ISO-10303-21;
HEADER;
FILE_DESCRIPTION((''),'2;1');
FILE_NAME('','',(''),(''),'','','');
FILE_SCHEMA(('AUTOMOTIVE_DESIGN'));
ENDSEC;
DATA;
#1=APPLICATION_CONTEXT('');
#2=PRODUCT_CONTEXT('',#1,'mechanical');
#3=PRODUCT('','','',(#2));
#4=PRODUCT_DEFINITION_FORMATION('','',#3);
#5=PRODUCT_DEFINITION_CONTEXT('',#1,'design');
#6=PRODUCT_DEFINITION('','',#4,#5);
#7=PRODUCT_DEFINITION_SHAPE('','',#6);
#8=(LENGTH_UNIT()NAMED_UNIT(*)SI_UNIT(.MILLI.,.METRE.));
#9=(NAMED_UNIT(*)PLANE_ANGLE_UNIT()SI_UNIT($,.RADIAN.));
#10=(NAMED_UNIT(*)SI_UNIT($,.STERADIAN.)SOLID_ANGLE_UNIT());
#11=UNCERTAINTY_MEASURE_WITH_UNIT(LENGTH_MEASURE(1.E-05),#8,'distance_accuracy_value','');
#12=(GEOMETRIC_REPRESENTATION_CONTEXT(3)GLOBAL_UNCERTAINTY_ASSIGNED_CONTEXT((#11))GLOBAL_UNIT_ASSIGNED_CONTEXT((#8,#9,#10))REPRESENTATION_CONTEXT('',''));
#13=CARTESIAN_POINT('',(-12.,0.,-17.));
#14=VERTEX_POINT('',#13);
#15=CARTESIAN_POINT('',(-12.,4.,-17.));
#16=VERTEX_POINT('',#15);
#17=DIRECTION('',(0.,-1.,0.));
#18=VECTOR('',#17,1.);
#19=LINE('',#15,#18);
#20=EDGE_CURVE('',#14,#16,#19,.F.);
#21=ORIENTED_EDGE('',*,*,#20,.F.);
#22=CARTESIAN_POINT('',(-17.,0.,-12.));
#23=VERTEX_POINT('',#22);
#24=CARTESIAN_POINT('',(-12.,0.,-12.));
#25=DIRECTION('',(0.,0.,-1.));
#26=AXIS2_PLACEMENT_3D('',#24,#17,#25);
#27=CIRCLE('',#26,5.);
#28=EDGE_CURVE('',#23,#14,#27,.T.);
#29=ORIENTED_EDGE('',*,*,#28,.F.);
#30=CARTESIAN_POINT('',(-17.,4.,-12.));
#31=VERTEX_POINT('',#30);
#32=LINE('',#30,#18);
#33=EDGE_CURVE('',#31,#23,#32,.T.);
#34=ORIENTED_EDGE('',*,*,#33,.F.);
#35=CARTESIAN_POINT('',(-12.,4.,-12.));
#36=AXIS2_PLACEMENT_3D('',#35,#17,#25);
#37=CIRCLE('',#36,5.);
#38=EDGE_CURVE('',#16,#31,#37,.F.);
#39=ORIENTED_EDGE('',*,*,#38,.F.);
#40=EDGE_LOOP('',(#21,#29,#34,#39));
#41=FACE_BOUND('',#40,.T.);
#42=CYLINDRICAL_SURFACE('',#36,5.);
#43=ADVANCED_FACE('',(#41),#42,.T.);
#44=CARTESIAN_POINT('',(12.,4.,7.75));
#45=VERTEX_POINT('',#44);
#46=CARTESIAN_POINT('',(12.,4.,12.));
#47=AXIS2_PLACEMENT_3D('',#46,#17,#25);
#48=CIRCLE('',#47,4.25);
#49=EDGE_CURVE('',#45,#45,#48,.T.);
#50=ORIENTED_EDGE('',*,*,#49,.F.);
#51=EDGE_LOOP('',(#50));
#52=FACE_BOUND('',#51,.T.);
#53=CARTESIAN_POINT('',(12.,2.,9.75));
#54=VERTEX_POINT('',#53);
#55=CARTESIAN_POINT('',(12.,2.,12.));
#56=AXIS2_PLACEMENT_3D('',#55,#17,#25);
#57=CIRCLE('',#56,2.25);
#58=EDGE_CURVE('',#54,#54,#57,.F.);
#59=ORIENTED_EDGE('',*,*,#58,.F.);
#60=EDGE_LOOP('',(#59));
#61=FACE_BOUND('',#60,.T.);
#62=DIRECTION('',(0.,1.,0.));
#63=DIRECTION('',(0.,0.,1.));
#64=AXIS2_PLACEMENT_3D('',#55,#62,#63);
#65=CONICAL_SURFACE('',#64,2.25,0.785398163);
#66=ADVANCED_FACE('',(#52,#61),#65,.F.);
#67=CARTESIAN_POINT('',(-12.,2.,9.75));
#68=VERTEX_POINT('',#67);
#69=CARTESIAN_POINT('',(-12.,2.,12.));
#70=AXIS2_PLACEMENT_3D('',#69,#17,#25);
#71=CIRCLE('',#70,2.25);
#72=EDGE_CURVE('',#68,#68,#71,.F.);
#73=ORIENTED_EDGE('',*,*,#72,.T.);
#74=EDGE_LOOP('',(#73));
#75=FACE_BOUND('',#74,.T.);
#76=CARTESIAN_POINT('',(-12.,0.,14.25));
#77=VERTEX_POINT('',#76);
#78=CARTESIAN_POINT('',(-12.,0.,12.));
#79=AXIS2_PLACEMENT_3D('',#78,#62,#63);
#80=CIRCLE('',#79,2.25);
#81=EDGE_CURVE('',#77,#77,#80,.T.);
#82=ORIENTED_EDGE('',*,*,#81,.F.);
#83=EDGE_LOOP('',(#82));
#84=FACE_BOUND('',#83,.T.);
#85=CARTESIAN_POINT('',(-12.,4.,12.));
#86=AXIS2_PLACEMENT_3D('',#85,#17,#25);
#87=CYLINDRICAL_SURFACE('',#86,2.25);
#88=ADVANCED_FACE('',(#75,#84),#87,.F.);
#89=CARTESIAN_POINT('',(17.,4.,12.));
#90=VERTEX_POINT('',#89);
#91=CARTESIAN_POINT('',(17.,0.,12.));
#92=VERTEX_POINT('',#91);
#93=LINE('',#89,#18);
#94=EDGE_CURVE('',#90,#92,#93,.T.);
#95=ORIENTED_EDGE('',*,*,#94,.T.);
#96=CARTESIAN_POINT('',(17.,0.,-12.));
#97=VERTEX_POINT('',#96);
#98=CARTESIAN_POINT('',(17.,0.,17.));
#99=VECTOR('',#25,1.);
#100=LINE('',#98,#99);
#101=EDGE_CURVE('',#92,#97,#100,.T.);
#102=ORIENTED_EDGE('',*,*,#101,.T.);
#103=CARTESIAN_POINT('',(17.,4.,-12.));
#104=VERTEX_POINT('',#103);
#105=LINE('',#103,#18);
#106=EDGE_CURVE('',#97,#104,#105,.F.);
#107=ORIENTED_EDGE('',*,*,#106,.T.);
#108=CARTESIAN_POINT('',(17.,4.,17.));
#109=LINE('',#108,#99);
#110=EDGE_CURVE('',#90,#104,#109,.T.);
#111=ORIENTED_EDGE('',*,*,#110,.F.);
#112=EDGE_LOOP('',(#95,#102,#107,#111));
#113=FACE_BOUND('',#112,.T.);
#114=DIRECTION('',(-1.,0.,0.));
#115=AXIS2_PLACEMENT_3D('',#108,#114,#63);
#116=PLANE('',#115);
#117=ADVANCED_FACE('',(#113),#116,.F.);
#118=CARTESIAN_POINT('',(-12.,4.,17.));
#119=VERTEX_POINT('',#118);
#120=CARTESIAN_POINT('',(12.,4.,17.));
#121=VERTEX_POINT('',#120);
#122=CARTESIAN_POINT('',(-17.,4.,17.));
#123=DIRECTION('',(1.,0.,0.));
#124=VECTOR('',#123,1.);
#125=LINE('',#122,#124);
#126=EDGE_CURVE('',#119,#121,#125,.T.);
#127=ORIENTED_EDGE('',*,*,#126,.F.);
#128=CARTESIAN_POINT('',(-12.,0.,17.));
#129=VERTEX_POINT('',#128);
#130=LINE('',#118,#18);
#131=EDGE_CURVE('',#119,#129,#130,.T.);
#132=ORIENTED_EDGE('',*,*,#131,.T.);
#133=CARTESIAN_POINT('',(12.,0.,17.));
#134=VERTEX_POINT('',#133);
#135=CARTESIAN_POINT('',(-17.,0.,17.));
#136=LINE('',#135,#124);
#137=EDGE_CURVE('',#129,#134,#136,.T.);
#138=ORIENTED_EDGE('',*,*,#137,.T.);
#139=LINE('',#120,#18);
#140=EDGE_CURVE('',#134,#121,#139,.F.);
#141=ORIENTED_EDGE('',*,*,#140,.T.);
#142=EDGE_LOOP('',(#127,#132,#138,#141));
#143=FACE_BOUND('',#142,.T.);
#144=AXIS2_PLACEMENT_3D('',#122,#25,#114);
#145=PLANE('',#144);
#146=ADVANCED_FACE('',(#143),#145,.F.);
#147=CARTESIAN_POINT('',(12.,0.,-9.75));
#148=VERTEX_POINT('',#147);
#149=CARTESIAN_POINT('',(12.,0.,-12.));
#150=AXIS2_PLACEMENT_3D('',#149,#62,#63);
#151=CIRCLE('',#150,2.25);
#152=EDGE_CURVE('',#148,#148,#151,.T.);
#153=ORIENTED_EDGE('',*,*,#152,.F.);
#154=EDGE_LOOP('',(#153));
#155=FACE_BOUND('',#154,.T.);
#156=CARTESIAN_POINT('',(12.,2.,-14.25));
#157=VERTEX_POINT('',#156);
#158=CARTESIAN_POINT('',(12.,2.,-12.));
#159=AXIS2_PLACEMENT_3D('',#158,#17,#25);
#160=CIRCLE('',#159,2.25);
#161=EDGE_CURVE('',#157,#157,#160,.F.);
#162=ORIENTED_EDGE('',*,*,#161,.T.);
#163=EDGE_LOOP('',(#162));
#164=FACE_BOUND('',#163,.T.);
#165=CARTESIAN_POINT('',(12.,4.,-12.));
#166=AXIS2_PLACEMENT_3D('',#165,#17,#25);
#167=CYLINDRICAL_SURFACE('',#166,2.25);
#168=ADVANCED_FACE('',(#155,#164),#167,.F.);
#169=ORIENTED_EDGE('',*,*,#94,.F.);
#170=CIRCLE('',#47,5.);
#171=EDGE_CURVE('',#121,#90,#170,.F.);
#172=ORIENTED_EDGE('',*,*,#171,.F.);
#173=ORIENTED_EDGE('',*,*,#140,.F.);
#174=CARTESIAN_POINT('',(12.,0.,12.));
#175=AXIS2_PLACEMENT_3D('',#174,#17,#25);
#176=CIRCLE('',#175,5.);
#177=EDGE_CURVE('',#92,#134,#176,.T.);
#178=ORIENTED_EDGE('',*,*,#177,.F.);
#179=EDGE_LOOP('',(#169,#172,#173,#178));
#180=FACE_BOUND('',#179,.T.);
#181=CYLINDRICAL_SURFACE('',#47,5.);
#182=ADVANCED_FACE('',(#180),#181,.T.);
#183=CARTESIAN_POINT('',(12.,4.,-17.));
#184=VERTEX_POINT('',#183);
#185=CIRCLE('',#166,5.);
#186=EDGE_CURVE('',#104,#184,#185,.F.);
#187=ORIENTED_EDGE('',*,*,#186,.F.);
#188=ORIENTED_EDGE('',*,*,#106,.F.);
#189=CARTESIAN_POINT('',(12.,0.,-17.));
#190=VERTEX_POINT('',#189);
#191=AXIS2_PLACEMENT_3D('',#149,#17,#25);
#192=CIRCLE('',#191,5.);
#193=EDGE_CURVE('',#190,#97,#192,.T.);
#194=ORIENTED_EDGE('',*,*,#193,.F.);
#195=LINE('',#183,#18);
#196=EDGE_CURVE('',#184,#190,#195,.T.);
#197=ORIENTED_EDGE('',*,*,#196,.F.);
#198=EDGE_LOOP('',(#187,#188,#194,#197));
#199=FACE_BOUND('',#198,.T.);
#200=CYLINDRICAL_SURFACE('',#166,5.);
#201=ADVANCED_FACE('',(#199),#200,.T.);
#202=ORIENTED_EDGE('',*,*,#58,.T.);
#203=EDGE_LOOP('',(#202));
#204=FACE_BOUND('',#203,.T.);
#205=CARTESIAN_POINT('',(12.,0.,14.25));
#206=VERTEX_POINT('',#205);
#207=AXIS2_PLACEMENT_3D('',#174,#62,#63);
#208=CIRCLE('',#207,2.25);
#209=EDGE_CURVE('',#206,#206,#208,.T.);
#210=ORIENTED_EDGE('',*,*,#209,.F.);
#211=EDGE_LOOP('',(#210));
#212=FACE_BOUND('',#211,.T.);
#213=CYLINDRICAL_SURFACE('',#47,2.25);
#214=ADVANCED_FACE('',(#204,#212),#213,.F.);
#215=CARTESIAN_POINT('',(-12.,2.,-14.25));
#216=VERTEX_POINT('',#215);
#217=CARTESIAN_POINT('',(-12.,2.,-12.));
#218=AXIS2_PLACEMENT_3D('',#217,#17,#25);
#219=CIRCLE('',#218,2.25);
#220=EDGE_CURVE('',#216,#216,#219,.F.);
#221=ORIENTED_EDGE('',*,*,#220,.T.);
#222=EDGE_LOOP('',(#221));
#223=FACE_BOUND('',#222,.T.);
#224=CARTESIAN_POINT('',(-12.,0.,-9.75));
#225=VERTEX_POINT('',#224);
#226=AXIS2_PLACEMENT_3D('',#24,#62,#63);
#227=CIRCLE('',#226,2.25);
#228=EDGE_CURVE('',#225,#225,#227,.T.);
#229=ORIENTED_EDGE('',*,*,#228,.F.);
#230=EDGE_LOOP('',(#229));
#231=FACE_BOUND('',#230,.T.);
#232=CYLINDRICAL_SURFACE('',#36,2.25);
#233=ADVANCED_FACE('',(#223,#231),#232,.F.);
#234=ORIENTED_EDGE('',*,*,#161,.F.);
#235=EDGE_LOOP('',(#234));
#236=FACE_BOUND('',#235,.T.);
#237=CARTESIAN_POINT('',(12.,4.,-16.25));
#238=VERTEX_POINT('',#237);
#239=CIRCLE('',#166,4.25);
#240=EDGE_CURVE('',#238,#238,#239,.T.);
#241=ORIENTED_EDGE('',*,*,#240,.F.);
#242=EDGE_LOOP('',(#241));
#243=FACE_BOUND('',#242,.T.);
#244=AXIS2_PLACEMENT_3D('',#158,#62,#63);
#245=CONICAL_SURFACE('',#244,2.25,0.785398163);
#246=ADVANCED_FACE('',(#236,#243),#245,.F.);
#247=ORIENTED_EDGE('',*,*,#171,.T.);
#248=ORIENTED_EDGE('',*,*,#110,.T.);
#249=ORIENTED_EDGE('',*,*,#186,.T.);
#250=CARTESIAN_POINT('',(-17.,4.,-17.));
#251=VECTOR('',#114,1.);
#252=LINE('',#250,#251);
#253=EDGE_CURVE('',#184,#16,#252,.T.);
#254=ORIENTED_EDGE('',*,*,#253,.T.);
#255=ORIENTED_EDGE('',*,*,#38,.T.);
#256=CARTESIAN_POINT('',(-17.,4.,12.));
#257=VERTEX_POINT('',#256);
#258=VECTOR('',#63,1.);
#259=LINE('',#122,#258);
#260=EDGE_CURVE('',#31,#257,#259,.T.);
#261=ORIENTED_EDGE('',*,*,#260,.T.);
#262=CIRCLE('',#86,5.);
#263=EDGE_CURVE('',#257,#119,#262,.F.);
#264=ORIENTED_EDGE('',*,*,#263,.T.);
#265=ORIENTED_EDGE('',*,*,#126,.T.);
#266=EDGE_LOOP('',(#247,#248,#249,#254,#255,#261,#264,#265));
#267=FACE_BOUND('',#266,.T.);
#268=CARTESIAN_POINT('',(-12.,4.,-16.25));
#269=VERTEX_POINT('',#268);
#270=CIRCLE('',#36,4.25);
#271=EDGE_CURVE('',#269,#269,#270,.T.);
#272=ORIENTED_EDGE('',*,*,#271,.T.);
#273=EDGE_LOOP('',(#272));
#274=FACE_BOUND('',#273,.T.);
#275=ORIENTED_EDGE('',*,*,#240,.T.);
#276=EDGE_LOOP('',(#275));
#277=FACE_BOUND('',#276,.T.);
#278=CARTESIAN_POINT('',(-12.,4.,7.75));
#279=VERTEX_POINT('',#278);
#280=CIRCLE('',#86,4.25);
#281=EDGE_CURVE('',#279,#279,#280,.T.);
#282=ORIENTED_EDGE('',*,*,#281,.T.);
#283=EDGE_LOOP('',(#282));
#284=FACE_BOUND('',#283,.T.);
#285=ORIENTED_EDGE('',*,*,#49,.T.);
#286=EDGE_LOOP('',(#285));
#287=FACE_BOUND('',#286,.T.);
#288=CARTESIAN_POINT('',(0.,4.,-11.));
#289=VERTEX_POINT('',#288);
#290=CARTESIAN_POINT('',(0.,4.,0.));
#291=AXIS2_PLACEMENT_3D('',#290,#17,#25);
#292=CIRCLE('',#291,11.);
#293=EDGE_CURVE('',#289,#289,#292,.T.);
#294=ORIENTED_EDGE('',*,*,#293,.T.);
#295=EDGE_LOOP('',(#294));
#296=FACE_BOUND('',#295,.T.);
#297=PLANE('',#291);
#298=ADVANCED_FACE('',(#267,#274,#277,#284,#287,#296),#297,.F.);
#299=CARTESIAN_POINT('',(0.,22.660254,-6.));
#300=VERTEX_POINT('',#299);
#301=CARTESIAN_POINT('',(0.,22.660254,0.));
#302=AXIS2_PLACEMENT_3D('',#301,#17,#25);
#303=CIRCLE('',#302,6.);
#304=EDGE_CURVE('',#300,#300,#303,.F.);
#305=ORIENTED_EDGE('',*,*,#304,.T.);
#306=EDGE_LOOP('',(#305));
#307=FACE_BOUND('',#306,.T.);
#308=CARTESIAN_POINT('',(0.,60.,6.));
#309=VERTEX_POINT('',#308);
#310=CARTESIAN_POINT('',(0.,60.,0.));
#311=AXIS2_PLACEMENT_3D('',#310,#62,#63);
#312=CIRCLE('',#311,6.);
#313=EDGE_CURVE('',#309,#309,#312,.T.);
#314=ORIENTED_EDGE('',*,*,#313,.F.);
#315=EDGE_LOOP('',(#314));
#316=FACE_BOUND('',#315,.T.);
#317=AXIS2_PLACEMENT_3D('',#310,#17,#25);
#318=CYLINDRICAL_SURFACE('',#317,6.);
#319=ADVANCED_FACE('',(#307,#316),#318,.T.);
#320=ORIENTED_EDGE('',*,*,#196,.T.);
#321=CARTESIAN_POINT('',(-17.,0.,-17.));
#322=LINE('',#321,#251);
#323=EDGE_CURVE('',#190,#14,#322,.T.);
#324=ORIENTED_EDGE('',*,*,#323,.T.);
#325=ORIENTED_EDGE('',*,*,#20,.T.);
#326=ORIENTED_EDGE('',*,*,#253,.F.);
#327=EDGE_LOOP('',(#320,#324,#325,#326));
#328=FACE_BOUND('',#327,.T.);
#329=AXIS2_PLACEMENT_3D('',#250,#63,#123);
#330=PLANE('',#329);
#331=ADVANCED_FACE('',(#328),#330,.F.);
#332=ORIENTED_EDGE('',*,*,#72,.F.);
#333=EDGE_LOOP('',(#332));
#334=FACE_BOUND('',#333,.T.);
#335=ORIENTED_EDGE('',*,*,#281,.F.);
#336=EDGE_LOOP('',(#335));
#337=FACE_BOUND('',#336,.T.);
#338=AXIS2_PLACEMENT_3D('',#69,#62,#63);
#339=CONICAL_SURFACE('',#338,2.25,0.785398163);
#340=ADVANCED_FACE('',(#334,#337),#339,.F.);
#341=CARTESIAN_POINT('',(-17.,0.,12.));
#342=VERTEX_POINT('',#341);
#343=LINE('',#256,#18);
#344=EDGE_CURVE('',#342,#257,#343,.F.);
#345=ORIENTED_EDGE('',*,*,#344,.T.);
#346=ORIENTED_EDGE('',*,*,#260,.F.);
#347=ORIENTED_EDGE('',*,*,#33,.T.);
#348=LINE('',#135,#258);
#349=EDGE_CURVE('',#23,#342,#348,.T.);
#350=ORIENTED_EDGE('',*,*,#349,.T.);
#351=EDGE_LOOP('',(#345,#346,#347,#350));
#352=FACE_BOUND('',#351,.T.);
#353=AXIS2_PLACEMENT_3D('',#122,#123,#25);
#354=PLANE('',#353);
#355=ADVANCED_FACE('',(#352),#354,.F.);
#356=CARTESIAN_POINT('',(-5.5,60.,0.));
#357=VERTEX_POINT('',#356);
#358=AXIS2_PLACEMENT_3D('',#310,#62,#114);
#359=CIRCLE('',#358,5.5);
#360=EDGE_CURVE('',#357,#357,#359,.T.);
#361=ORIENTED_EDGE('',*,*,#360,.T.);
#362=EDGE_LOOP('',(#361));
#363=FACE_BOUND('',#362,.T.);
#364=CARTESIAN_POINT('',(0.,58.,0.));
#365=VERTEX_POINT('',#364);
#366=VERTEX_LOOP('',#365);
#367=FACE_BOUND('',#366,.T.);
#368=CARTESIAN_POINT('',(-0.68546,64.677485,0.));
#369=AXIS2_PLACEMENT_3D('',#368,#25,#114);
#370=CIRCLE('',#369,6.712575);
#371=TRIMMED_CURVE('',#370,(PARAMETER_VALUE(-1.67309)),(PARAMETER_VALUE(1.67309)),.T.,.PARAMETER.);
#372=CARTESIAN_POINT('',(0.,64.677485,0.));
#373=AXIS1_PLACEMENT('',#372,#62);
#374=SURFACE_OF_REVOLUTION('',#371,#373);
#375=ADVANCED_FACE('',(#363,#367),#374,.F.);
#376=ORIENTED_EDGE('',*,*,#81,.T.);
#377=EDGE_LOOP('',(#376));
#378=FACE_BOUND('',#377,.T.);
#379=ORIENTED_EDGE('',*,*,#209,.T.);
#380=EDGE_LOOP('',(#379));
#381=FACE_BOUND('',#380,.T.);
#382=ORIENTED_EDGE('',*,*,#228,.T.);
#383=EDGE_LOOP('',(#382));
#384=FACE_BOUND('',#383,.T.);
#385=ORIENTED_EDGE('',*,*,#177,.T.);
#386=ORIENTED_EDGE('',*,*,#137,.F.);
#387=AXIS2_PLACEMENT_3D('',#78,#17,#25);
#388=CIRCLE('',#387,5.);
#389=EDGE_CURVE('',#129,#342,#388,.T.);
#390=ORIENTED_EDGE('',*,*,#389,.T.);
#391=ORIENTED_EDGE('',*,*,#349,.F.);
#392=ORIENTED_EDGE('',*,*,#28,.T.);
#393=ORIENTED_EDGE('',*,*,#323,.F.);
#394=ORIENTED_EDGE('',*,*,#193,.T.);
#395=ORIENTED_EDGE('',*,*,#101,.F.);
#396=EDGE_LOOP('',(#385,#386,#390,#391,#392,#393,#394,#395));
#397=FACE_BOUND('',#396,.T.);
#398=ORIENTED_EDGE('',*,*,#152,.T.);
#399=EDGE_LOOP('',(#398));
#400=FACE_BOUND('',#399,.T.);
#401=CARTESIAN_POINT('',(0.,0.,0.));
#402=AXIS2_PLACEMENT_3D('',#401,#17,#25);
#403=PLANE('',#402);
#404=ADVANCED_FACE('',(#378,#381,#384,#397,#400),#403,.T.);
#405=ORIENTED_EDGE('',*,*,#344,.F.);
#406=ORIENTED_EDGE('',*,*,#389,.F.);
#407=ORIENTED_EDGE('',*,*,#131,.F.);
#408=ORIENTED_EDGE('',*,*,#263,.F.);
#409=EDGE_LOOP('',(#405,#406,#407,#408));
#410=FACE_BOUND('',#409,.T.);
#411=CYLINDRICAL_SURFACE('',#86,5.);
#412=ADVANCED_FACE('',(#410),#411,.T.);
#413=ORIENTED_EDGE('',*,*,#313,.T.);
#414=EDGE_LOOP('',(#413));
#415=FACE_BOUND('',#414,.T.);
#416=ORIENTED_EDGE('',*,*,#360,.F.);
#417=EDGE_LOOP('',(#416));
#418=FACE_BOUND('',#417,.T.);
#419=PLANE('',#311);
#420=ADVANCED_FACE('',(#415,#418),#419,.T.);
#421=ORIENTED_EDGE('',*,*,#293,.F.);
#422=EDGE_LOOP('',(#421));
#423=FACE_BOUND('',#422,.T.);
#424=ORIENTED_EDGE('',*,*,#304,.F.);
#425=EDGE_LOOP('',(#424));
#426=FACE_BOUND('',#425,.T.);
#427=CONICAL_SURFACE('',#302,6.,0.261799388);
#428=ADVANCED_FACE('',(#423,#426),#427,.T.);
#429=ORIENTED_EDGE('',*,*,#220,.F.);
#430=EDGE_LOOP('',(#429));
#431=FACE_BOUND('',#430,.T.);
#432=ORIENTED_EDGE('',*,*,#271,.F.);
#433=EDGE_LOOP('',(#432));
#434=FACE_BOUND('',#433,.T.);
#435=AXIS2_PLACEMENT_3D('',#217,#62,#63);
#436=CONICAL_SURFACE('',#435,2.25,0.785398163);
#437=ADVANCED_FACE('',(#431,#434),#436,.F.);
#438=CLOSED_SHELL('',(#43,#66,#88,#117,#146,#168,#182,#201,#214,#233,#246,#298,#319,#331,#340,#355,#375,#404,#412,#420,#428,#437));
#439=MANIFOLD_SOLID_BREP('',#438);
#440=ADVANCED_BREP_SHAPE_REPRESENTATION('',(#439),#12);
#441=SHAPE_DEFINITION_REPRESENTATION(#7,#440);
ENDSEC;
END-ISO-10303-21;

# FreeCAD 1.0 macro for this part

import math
import FreeCAD as App
import Part
import Sketcher

V = App.Vector
Q = App.Units.Quantity


def edges_at(feature, points):
    """Names of the edges that pass closest to the given points."""
    edges = feature.Shape.Edges
    near = lambda p: min(range(len(edges)), key=lambda i: edges[i].distToShape(Part.Vertex(*p))[0])
    return sorted({f"Edge{near(p) + 1}" for p in points})


def add_polygon(sketch, points):
    """Adds a closed chain of lines whose ends are joined by coincident constraints."""
    first, n = sketch.GeometryCount, len(points)
    for a, b in zip(points, points[1:] + points[:1]):
        sketch.addGeometry(Part.LineSegment(App.Vector(*a, 0), App.Vector(*b, 0)), False)
    for i in range(n):
        sketch.addConstraint(Sketcher.Constraint("Coincident", first + i, 2, first + (i + 1) % n, 1))

doc = App.newDocument("Part")
params = doc.addObject("Spreadsheet::Sheet", "Params")
for row, (alias, value) in enumerate([
    ("sketch1_diameter", "4.5 mm"),
    ("sketch1_width", "34 mm"),
    ("pad1_length", "4 mm"),
    ("fillet_radius", "5 mm"),
    ("sketch2_diameter", "12 mm"),
    ("pad2_length", "56 mm"),
    ("sketch3_height", "2 mm"),
    ("sketch3_width", "5.5 mm"),
    ("groove_angle", "360 deg"),
    ("chamfer_size", "5 mm"),
    ("chamfer_size2", "18.660254 mm"),
    ("chamfer2_size", "2 mm"),
], start=1):
    params.set(f"A{row}", alias)
    params.set(f"B{row}", "=" + value)
    params.setAlias(f"B{row}", alias)

body = doc.addObject("PartDesign::Body", "Body")

# Sketch on XZ plane
sketch1 = body.newObject("Sketcher::SketchObject", "Sketch")
sketch1.AttachmentSupport = (doc.getObject("XZ_Plane"), [""])
sketch1.MapMode = "FlatFace"
add_polygon(sketch1, [(-17, -17), (-17, 17), (17, 17), (17, -17)])  # lines 0-3
sketch1.addGeometry(Part.Circle(V(-12, 12, 0), V(0, 0, 1), 2.2), False)  # 4
sketch1.addGeometry(Part.Circle(V(12, 12, 0), V(0, 0, 1), 2.2), False)  # 5
sketch1.addGeometry(Part.Circle(V(-12, -12, 0), V(0, 0, 1), 2.2), False)  # 6
sketch1.addGeometry(Part.Circle(V(12, -12, 0), V(0, 0, 1), 2.2), False)  # 7
sketch1.addConstraint([
    Sketcher.Constraint("Vertical", 0),
    Sketcher.Constraint("Horizontal", 1),
    Sketcher.Constraint("Vertical", 2),
    Sketcher.Constraint("Horizontal", 3),
    Sketcher.Constraint("Equal", 4, 5),
    Sketcher.Constraint("Equal", 5, 6),
    Sketcher.Constraint("Equal", 6, 7),
    Sketcher.Constraint("Symmetric", 5, 3, 6, 3, -1, 1),
    Sketcher.Constraint("Symmetric", 4, 3, 7, 3, -1, 1),
    Sketcher.Constraint("Symmetric", 0, 2, 2, 2, -1, 1),
    Sketcher.Constraint("Symmetric", 4, 3, 5, 3, -2),
    Sketcher.Constraint("Equal", 3, 0),
    Sketcher.Constraint("Diameter", 4, Q("4.5 mm")),
    Sketcher.Constraint("DistanceX", 1, 1, 1, 2, Q("34 mm")),
    Sketcher.Constraint("DistanceX", 4, 3, -1, 1, Q("12 mm")),
    Sketcher.Constraint("DistanceY", -1, 1, 4, 3, Q("12 mm")),
])
sketch1.setExpression("Constraints[16]", "Params.sketch1_diameter")
sketch1.setExpression("Constraints[17]", "Params.sketch1_width")
pad1 = body.newObject("PartDesign::Pad", "Pad")
pad1.Profile = sketch1
pad1.setExpression("Length", "Params.pad1_length")
pad1.Reversed = True
doc.recompute()

fillet = body.newObject("PartDesign::Fillet", "Fillet")
fillet.Base = (pad1, edges_at(pad1, [
    (17, 2, 17),
    (-17, 2, 17),
    (-17, 2, -17),
    (17, 2, -17),
]))
fillet.setExpression("Radius", "Params.fillet_radius")

# Sketch on XZ plane
sketch2 = body.newObject("Sketcher::SketchObject", "Sketch001")
sketch2.AttachmentSupport = (doc.getObject("XZ_Plane"), [""])
sketch2.MapMode = "FlatFace"
sketch2.AttachmentOffset = App.Placement(V(0, 0, -4), App.Rotation())
sketch2.addGeometry(Part.Circle(V(0, 0, 0), V(0, 0, 1), 6), False)
sketch2.addConstraint([
    Sketcher.Constraint("Coincident", 0, 3, -1, 1),
    Sketcher.Constraint("Diameter", 0, Q("12 mm")),
])
sketch2.setExpression("Constraints[1]", "Params.sketch2_diameter")
pad2 = body.newObject("PartDesign::Pad", "Pad001")
pad2.Profile = sketch2
pad2.setExpression("Length", "Params.pad2_length")
pad2.Reversed = True

# Sketch on XY plane
sketch3 = body.newObject("Sketcher::SketchObject", "Sketch002")
sketch3.AttachmentSupport = (doc.getObject("XY_Plane"), [""])
sketch3.MapMode = "FlatFace"
sketch3.addGeometry([
    Part.LineSegment(V(5.5, 60, 0), V(0, 60, 0)),
    Part.LineSegment(V(0, 60, 0), V(0, 58, 0)),
    Part.ArcOfCircle(Part.Circle(V(0.7, 64.7, 0), V(0, 0, 1), 6.7), math.radians(-96), math.radians(-44)),
], False)
sketch3.addConstraint([
    Sketcher.Constraint("Coincident", 0, 2, 1, 1),
    Sketcher.Constraint("Coincident", 1, 2, 2, 1),
    Sketcher.Constraint("Coincident", 2, 2, 0, 1),
    Sketcher.Constraint("Horizontal", 0),
    Sketcher.Constraint("Vertical", 1),
    Sketcher.Constraint("PointOnObject", 0, 2, -2),
    Sketcher.Constraint("DistanceY", 1, 2, 1, 1, Q("2 mm")),
    Sketcher.Constraint("DistanceX", 0, 2, 0, 1, Q("5.5 mm")),
    Sketcher.Constraint("DistanceY", -1, 1, 0, 2, Q("60 mm")),
    Sketcher.Constraint("Radius", 2, Q("6.712575 mm")),
])
sketch3.setExpression("Constraints[6]", "Params.sketch3_height")
sketch3.setExpression("Constraints[7]", "Params.sketch3_width")
groove = body.newObject("PartDesign::Groove", "Groove")
groove.Profile = sketch3
groove.ReferenceAxis = (sketch3, ["V_Axis"])
groove.setExpression("Angle", "Params.groove_angle")
doc.recompute()

chamfer = body.newObject("PartDesign::Chamfer", "Chamfer")
chamfer.Base = (groove, edges_at(groove, [(0, 4, -6)]))
chamfer.ChamferType = "Two distances"
chamfer.setExpression("Size", "Params.chamfer_size")
chamfer.setExpression("Size2", "Params.chamfer_size2")
doc.recompute()

chamfer2 = body.newObject("PartDesign::Chamfer", "Chamfer001")
chamfer2.Base = (chamfer, edges_at(chamfer, [
    (-12, 4, -14.25),
    (12, 4, -14.25),
    (12, 4, 9.75),
    (-12, 4, 9.75),
]))
chamfer2.setExpression("Size", "Params.chamfer2_size")

doc.recompute()
